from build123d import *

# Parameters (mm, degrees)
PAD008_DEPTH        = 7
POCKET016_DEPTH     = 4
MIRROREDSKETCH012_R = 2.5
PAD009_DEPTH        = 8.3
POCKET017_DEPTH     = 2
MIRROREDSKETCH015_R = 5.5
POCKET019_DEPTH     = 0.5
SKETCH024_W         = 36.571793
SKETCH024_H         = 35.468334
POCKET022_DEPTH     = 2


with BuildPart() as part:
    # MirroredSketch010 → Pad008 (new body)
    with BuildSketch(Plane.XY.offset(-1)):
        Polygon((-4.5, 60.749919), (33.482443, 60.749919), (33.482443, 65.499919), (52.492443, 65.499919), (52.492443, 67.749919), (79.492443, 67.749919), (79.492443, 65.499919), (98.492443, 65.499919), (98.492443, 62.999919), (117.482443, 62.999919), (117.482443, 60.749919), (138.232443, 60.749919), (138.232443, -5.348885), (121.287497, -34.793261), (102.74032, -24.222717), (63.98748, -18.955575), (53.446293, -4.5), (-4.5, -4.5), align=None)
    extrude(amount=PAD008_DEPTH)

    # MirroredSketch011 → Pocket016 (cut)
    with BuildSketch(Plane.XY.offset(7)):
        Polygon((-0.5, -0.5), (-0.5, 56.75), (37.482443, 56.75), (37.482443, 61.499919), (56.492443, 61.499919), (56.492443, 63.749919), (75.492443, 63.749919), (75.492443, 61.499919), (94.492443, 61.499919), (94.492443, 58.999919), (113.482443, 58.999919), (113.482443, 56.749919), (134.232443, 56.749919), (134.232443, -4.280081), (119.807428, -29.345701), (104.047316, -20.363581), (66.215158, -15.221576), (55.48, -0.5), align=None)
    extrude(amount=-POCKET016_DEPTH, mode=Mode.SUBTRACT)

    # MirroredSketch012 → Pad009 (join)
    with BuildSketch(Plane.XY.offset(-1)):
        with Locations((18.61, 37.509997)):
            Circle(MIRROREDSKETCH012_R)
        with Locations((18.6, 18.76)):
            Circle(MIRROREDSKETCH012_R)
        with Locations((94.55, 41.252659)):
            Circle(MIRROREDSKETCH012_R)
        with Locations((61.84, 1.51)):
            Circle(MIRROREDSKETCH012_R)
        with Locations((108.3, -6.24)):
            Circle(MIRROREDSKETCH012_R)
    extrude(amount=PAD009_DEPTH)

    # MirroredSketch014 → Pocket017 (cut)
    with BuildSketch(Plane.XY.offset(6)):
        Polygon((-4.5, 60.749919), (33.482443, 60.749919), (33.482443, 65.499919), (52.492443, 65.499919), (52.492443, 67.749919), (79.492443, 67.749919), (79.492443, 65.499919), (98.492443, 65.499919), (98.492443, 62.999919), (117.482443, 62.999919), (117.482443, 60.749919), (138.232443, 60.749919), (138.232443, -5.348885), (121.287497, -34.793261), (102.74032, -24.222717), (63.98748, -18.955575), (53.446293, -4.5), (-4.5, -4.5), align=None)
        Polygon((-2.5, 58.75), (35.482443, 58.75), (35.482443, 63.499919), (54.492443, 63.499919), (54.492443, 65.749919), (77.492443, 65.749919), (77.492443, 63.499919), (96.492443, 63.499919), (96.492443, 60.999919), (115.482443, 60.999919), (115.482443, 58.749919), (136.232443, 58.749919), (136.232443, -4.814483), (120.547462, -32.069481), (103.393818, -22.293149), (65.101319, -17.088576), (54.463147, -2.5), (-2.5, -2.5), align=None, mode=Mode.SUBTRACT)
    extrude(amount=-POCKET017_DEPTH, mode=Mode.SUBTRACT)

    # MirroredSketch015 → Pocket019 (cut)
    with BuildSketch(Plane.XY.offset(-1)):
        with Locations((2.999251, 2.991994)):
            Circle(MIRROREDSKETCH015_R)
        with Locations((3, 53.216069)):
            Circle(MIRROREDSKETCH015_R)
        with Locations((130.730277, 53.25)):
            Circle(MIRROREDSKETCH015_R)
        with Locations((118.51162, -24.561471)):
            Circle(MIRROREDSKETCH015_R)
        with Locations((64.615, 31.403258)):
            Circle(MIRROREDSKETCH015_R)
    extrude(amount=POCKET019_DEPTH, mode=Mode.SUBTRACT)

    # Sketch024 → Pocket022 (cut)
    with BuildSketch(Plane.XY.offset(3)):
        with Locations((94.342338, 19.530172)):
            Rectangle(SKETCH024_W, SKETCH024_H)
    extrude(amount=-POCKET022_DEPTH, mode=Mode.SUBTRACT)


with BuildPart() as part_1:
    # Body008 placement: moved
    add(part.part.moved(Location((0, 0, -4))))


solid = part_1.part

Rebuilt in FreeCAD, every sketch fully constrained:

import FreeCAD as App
import Part
import Sketcher
from FreeCAD import Vector
Q = App.Units.Quantity


def add_polygon(sketch, points):
    """Adds a closed chain of lines whose ends are joined by coincident constraints."""
    first, n = sketch.GeometryCount, len(points)
    for a, b in zip(points, points[1:] + points[:1]):
        sketch.addGeometry(Part.LineSegment(App.Vector(*a, 0), App.Vector(*b, 0)), False)
    for i in range(n):
        sketch.addConstraint(Sketcher.Constraint("Coincident", first + i, 2, first + (i + 1) % n, 1))

doc = App.newDocument("Part")
params = doc.addObject("Spreadsheet::Sheet", "Params")
for row, (alias, value) in enumerate([
    ("sketch1_width", "19 mm"),
    ("sketch1_width2", "27 mm"),
    ("sketch1_height", "2.5 mm"),
    ("sketch1_width3", "20.75 mm"),
    ("sketch1_width4", "18.99 mm"),
    ("pad1_length", "7 mm"),
    ("sketch2_width", "19 mm"),
    ("sketch2_height", "2.5 mm"),
    ("sketch2_width2", "55.98 mm"),
    ("sketch2_width3", "20.75 mm"),
    ("sketch2_width4", "18.99 mm"),
    ("pocket1_length", "4 mm"),
    ("sketch3_diameter", "5 mm"),
    ("pad2_length", "8.3 mm"),
    ("sketch4_width", "19 mm"),
    ("sketch4_width2", "27 mm"),
    ("sketch4_width3", "23 mm"),
    ("sketch4_height", "2.5 mm"),
    ("sketch4_width4", "20.75 mm"),
    ("pocket2_length", "2 mm"),
    ("sketch5_diameter", "11 mm"),
    ("pocket3_length", "0.5 mm"),
    ("pocket4_length", "2 mm"),
], start=1):
    params.set(f"A{row}", alias)
    params.set(f"B{row}", "=" + value)
    params.setAlias(f"B{row}", alias)

body = doc.addObject("PartDesign::Body", "Body")

# Sketch on XY plane
sketch1 = body.newObject("Sketcher::SketchObject", "Sketch")
sketch1.AttachmentSupport = (doc.getObject("XY_Plane"), [""])
sketch1.MapMode = "FlatFace"
sketch1.AttachmentOffset = App.Placement(Vector(0, 0, -1), App.Rotation())
add_polygon(sketch1, [(33.482443, 60.749919), (-4.5, 60.749919), (-4.5, -4.5), (53.446293, -4.5), (63.98748, -18.955575), (102.74032, -24.222717), (121.287497, -34.793261), (138.232443, -5.348885), (138.232443, 60.749919), (117.482443, 60.749919), (117.482443, 62.999919), (98.492443, 62.999919), (98.492443, 65.499919), (79.492443, 65.499919), (79.492443, 67.749919), (52.492443, 67.749919), (52.492443, 65.499919), (33.482443, 65.499919)])  # lines 0-17
sketch1.addConstraint(Sketcher.Constraint("Horizontal", 0))
sketch1.addConstraint(Sketcher.Constraint("Vertical", 1))
sketch1.addConstraint(Sketcher.Constraint("Horizontal", 2))
sketch1.addConstraint(Sketcher.Constraint("Vertical", 7))
sketch1.addConstraint(Sketcher.Constraint("Horizontal", 8))
sketch1.addConstraint(Sketcher.Constraint("Vertical", 9))
sketch1.addConstraint(Sketcher.Constraint("Horizontal", 10))
sketch1.addConstraint(Sketcher.Constraint("Vertical", 11))
sketch1.addConstraint(Sketcher.Constraint("Horizontal", 12))
sketch1.addConstraint(Sketcher.Constraint("Vertical", 13))
sketch1.addConstraint(Sketcher.Constraint("Horizontal", 14))
sketch1.addConstraint(Sketcher.Constraint("Vertical", 15))
sketch1.addConstraint(Sketcher.Constraint("Horizontal", 16))
sketch1.addConstraint(Sketcher.Constraint("Vertical", 17))
sketch1.addConstraint(Sketcher.Constraint("Horizontal", 0, 2, 7, 2))
sketch1.addConstraint(Sketcher.Constraint("Horizontal", 12, 2, 15, 2))
sketch1.addConstraint(Sketcher.Constraint("Equal", 9, 13))
sketch1.addConstraint(Sketcher.Constraint("DistanceX", 12, 2, 12, 1, Q("19 mm")))
sketch1.addConstraint(Sketcher.Constraint("DistanceX", 14, 2, 14, 1, Q("27 mm")))
sketch1.addConstraint(Sketcher.Constraint("DistanceY", 11, 1, 11, 2, Q("2.5 mm")))
sketch1.addConstraint(Sketcher.Constraint("Angle", 3, Q("-53.899999 deg")))
sketch1.addConstraint(Sketcher.Constraint("DistanceY", 8, 2, 13, 2, Q("7 mm")))
sketch1.addConstraint(Sketcher.Constraint("DistanceX", 8, 2, 8, 1, Q("20.75 mm")))
sketch1.addConstraint(Sketcher.Constraint("DistanceX", 10, 2, 10, 1, Q("18.99 mm")))
sketch1.addConstraint(Sketcher.Constraint("DistanceX", 16, 2, 16, 1, Q("19.01 mm")))
sketch1.addConstraint(Sketcher.Constraint("DistanceX", 0, 2, -1, 1, Q("4.5 mm")))
sketch1.addConstraint(Sketcher.Constraint("DistanceY", 1, 2, -1, 1, Q("4.5 mm")))
sketch1.addConstraint(Sketcher.Constraint("Angle", 4, Q("-7.740001 deg")))
sketch1.addConstraint(Sketcher.Constraint("Angle", 5, Q("-29.68 deg")))
sketch1.addConstraint(Sketcher.Constraint("Angle", 6, Q("60.080001 deg")))
sketch1.addConstraint(Sketcher.Constraint("DistanceY", 1, 2, 1, 1, Q("65.249919 mm")))
sketch1.addConstraint(Sketcher.Constraint("Distance", 5, Q("21.347931 mm")))
sketch1.addConstraint(Sketcher.Constraint("DistanceX", 0, 2, 0, 1, Q("37.982443 mm")))
sketch1.addConstraint(Sketcher.Constraint("DistanceX", 2, 1, 2, 2, Q("57.946293 mm")))
sketch1.addConstraint(Sketcher.Constraint("DistanceY", 7, 1, 7, 2, Q("66.098804 mm")))
sketch1.addConstraint(Sketcher.Constraint("DistanceX", -1, 1, 3, 2, Q("63.98748 mm")))
sketch1.setExpression("Constraints[35]", "Params.sketch1_width")
sketch1.setExpression("Constraints[36]", "Params.sketch1_width2")
sketch1.setExpression("Constraints[37]", "Params.sketch1_height")
sketch1.setExpression("Constraints[40]", "Params.sketch1_width3")
sketch1.setExpression("Constraints[41]", "Params.sketch1_width4")
pad1 = body.newObject("PartDesign::Pad", "Pad")
pad1.Profile = sketch1
pad1.setExpression("Length", "Params.pad1_length")

# Sketch on XY plane
sketch2 = body.newObject("Sketcher::SketchObject", "Sketch001")
sketch2.AttachmentSupport = (doc.getObject("XY_Plane"), [""])
sketch2.MapMode = "FlatFace"
sketch2.AttachmentOffset = App.Placement(Vector(0, 0, 7), App.Rotation())
add_polygon(sketch2, [(-0.5, 56.75), (-0.5, -0.5), (55.48, -0.5), (66.215158, -15.221576), (104.047316, -20.363581), (119.807428, -29.345701), (134.232443, -4.280081), (134.232443, 56.749919), (113.482443, 56.749919), (113.482443, 58.999919), (94.492443, 58.999919), (94.492443, 61.499919), (75.492443, 61.499919), (75.492443, 63.749919), (56.492443, 63.749919), (56.492443, 61.499919), (37.482443, 61.499919), (37.482443, 56.75)])  # lines 0-17
sketch2.addConstraint(Sketcher.Constraint("Vertical", 0))
sketch2.addConstraint(Sketcher.Constraint("Horizontal", 1))
sketch2.addConstraint(Sketcher.Constraint("Vertical", 6))
sketch2.addConstraint(Sketcher.Constraint("Horizontal", 7))
sketch2.addConstraint(Sketcher.Constraint("Vertical", 8))
sketch2.addConstraint(Sketcher.Constraint("Horizontal", 9))
sketch2.addConstraint(Sketcher.Constraint("Vertical", 10))
sketch2.addConstraint(Sketcher.Constraint("Horizontal", 11))
sketch2.addConstraint(Sketcher.Constraint("Vertical", 12))
sketch2.addConstraint(Sketcher.Constraint("Horizontal", 13))
sketch2.addConstraint(Sketcher.Constraint("Vertical", 14))
sketch2.addConstraint(Sketcher.Constraint("Horizontal", 15))
sketch2.addConstraint(Sketcher.Constraint("Vertical", 16))
sketch2.addConstraint(Sketcher.Constraint("Horizontal", 17))
sketch2.addConstraint(Sketcher.Constraint("Horizontal", 11, 2, 14, 2))
sketch2.addConstraint(Sketcher.Constraint("Equal", 11, 13))
sketch2.addConstraint(Sketcher.Constraint("Equal", 8, 12))
sketch2.addConstraint(Sketcher.Constraint("DistanceX", 11, 2, 11, 1, Q("19 mm")))
sketch2.addConstraint(Sketcher.Constraint("DistanceY", 10, 1, 10, 2, Q("2.5 mm")))
sketch2.addConstraint(Sketcher.Constraint("Angle", 2, Q("-53.9 deg")))
sketch2.addConstraint(Sketcher.Constraint("DistanceY", 7, 2, 12, 2, Q("7 mm")))
sketch2.addConstraint(Sketcher.Constraint("DistanceX", 1, 1, 1, 2, Q("55.98 mm")))
sketch2.addConstraint(Sketcher.Constraint("DistanceX", 7, 2, 7, 1, Q("20.75 mm")))
sketch2.addConstraint(Sketcher.Constraint("DistanceX", 9, 2, 9, 1, Q("18.99 mm")))
sketch2.addConstraint(Sketcher.Constraint("DistanceX", 15, 2, 15, 1, Q("19.01 mm")))
sketch2.addConstraint(Sketcher.Constraint("DistanceY", 0, 2, 0, 1, Q("57.25 mm")))
sketch2.addConstraint(Sketcher.Constraint("DistanceY", 6, 1, 6, 2, Q("61.03 mm")))
sketch2.addConstraint(Sketcher.Constraint("DistanceX", 0, 2, -1, 1, Q("0.5 mm")))
sketch2.addConstraint(Sketcher.Constraint("DistanceY", 0, 2, -1, 1, Q("0.5 mm")))
sketch2.addConstraint(Sketcher.Constraint("Angle", 3, Q("-7.739999 deg")))
sketch2.addConstraint(Sketcher.Constraint("Angle", 4, Q("-29.680001 deg")))
sketch2.addConstraint(Sketcher.Constraint("Angle", 5, Q("60.080001 deg")))
sketch2.addConstraint(Sketcher.Constraint("Distance", 2, Q("18.22 mm")))
sketch2.addConstraint(Sketcher.Constraint("Distance", 3, Q("38.18 mm")))
sketch2.addConstraint(Sketcher.Constraint("Distance", 4, Q("18.14 mm")))
sketch2.addConstraint(Sketcher.Constraint("Distance", 5, Q("28.919999 mm")))
sketch2.setExpression("Constraints[35]", "Params.sketch2_width")
sketch2.setExpression("Constraints[36]", "Params.sketch2_height")
sketch2.setExpression("Constraints[39]", "Params.sketch2_width2")
sketch2.setExpression("Constraints[40]", "Params.sketch2_width3")
sketch2.setExpression("Constraints[41]", "Params.sketch2_width4")
pocket1 = body.newObject("PartDesign::Pocket", "Pocket")
pocket1.Profile = sketch2
pocket1.setExpression("Length", "Params.pocket1_length")

# Sketch on XY plane
sketch3 = body.newObject("Sketcher::SketchObject", "Sketch002")
sketch3.AttachmentSupport = (doc.getObject("XY_Plane"), [""])
sketch3.MapMode = "FlatFace"
sketch3.AttachmentOffset = App.Placement(Vector(0, 0, -1), App.Rotation())
sketch3.addGeometry(Part.Circle(Vector(18.61, 37.509997, 0), Vector(0, 0, 1), 2.5), False)
sketch3.addGeometry(Part.Circle(Vector(18.6, 18.76, 0), Vector(0, 0, 1), 2.5), False)
sketch3.addGeometry(Part.Circle(Vector(94.55, 41.252659, 0), Vector(0, 0, 1), 2.5), False)
sketch3.addGeometry(Part.Circle(Vector(61.84, 1.51, 0), Vector(0, 0, 1), 2.5), False)
sketch3.addGeometry(Part.Circle(Vector(108.3, -6.24, 0), Vector(0, 0, 1), 2.5), False)
sketch3.addConstraint(Sketcher.Constraint("Equal", 0, 1))
sketch3.addConstraint(Sketcher.Constraint("Equal", 1, 2))
sketch3.addConstraint(Sketcher.Constraint("Equal", 2, 3))
sketch3.addConstraint(Sketcher.Constraint("Equal", 3, 4))
sketch3.addConstraint(Sketcher.Constraint("Diameter", 0, Q("5 mm")))
sketch3.addConstraint(Sketcher.Constraint("DistanceY", 4, 3, 1, 3, Q("25 mm")))
sketch3.addConstraint(Sketcher.Constraint("DistanceX", -1, 1, 1, 3, Q("18.6 mm")))
sketch3.addConstraint(Sketcher.Constraint("DistanceX", -1, 1, 4, 3, Q("108.3 mm")))
sketch3.addConstraint(Sketcher.Constraint("DistanceX", -1, 1, 0, 3, Q("18.61 mm")))
sketch3.addConstraint(Sketcher.Constraint("DistanceY", -1, 1, 1, 3, Q("18.76 mm")))
sketch3.addConstraint(Sketcher.Constraint("DistanceX", -1, 1, 2, 3, Q("94.55 mm")))
sketch3.addConstraint(Sketcher.Constraint("DistanceX", -1, 1, 3, 3, Q("61.84 mm")))
sketch3.addConstraint(Sketcher.Constraint("DistanceY", -1, 1, 3, 3, Q("1.51 mm")))
sketch3.addConstraint(Sketcher.Constraint("DistanceY", -1, 1, 2, 3, Q("41.252659 mm")))
sketch3.addConstraint(Sketcher.Constraint("DistanceY", -1, 1, 0, 3, Q("37.509997 mm")))
sketch3.setExpression("Constraints[4]", "Params.sketch3_diameter")
pad2 = body.newObject("PartDesign::Pad", "Pad001")
pad2.Profile = sketch3
pad2.setExpression("Length", "Params.pad2_length")

# Sketch on XY plane
sketch4 = body.newObject("Sketcher::SketchObject", "Sketch003")
sketch4.AttachmentSupport = (doc.getObject("XY_Plane"), [""])
sketch4.MapMode = "FlatFace"
sketch4.AttachmentOffset = App.Placement(Vector(0, 0, 6), App.Rotation())
add_polygon(sketch4, [(33.482443, 60.749919), (-4.5, 60.749919), (-4.5, -4.5), (53.446293, -4.5), (63.98748, -18.955575), (102.74032, -24.222717), (121.287497, -34.793261), (138.232443, -5.348885), (138.232443, 60.749919), (117.482443, 60.749919), (117.482443, 62.999919), (98.492443, 62.999919), (98.492443, 65.499919), (79.492443, 65.499919), (79.492443, 67.749919), (52.492443, 67.749919), (52.492443, 65.499919), (33.482443, 65.499919)])  # lines 0-17
add_polygon(sketch4, [(-2.5, 58.75), (35.482443, 58.75), (35.482443, 63.499919), (54.492443, 63.499919), (54.492443, 65.749919), (77.492443, 65.749919), (77.492443, 63.499919), (96.492443, 63.499919), (96.492443, 60.999919), (115.482443, 60.999919), (115.482443, 58.749919), (136.232443, 58.749919), (136.232443, -4.814483), (120.547462, -32.069481), (103.393818, -22.293149), (65.101319, -17.088576), (54.463147, -2.5), (-2.5, -2.5)])  # lines 18-35
sketch4.addConstraint(Sketcher.Constraint("Horizontal", 0))
sketch4.addConstraint(Sketcher.Constraint("Vertical", 1))
sketch4.addConstraint(Sketcher.Constraint("Horizontal", 2))
sketch4.addConstraint(Sketcher.Constraint("Vertical", 7))
sketch4.addConstraint(Sketcher.Constraint("Horizontal", 8))
sketch4.addConstraint(Sketcher.Constraint("Vertical", 9))
sketch4.addConstraint(Sketcher.Constraint("Horizontal", 10))
sketch4.addConstraint(Sketcher.Constraint("Vertical", 11))
sketch4.addConstraint(Sketcher.Constraint("Horizontal", 12))
sketch4.addConstraint(Sketcher.Constraint("Vertical", 13))
sketch4.addConstraint(Sketcher.Constraint("Horizontal", 14))
sketch4.addConstraint(Sketcher.Constraint("Vertical", 15))
sketch4.addConstraint(Sketcher.Constraint("Horizontal", 16))
sketch4.addConstraint(Sketcher.Constraint("Vertical", 17))
sketch4.addConstraint(Sketcher.Constraint("Horizontal", 18))
sketch4.addConstraint(Sketcher.Constraint("Vertical", 19))
sketch4.addConstraint(Sketcher.Constraint("Horizontal", 20))
sketch4.addConstraint(Sketcher.Constraint("Vertical", 21))
sketch4.addConstraint(Sketcher.Constraint("Horizontal", 22))
sketch4.addConstraint(Sketcher.Constraint("Vertical", 23))
sketch4.addConstraint(Sketcher.Constraint("Horizontal", 24))
sketch4.addConstraint(Sketcher.Constraint("Vertical", 25))
sketch4.addConstraint(Sketcher.Constraint("Horizontal", 26))
sketch4.addConstraint(Sketcher.Constraint("Vertical", 27))
sketch4.addConstraint(Sketcher.Constraint("Horizontal", 28))
sketch4.addConstraint(Sketcher.Constraint("Vertical", 29))
sketch4.addConstraint(Sketcher.Constraint("Horizontal", 34))
sketch4.addConstraint(Sketcher.Constraint("Vertical", 35))
sketch4.addConstraint(Sketcher.Constraint("Parallel", 6, 30))
sketch4.addConstraint(Sketcher.Constraint("Parallel", 5, 31))
sketch4.addConstraint(Sketcher.Constraint("Parallel", 4, 32))
sketch4.addConstraint(Sketcher.Constraint("Parallel", 3, 33))
sketch4.addConstraint(Sketcher.Constraint("Horizontal", 0, 2, 7, 2))
sketch4.addConstraint(Sketcher.Constraint("Horizontal", 12, 2, 15, 2))
sketch4.addConstraint(Sketcher.Constraint("Horizontal", 20, 2, 23, 2))
sketch4.addConstraint(Sketcher.Constraint("Equal", 0, 18))
sketch4.addConstraint(Sketcher.Constraint("Equal", 16, 20))
sketch4.addConstraint(Sketcher.Constraint("Equal", 12, 24))
sketch4.addConstraint(Sketcher.Constraint("Equal", 10, 26))
sketch4.addConstraint(Sketcher.Constraint("Equal", 8, 28))
sketch4.addConstraint(Sketcher.Constraint("Equal", 9, 13))
sketch4.addConstraint(Sketcher.Constraint("Equal", 15, 21))
sketch4.addConstraint(Sketcher.Constraint("Equal", 11, 25))
sketch4.addConstraint(Sketcher.Constraint("Equal", 23, 27))
sketch4.addConstraint(Sketcher.Constraint("DistanceX", 12, 2, 12, 1, Q("19 mm")))
sketch4.addConstraint(Sketcher.Constraint("DistanceX", 14, 2, 14, 1, Q("27 mm")))
sketch4.addConstraint(Sketcher.Constraint("DistanceX", 22, 1, 22, 2, Q("23 mm")))
sketch4.addConstraint(Sketcher.Constraint("DistanceY", 11, 1, 11, 2, Q("2.5 mm")))
sketch4.addConstraint(Sketcher.Constraint("Angle", 3, Q("-53.899999 deg")))
sketch4.addConstraint(Sketcher.Constraint("DistanceY", 8, 2, 13, 2, Q("7 mm")))
sketch4.addConstraint(Sketcher.Constraint("DistanceX", 17, 2, 18, 2, Q("2 mm")))
sketch4.addConstraint(Sketcher.Constraint("DistanceY", 19, 2, 16, 2, Q("2 mm")))
sketch4.addConstraint(Sketcher.Constraint("DistanceY", 2, 2, 33, 2, Q("2 mm")))
sketch4.addConstraint(Sketcher.Constraint("DistanceX", 8, 2, 8, 1, Q("20.75 mm")))
sketch4.addConstraint(Sketcher.Constraint("DistanceX", 10, 2, 10, 1, Q("18.99 mm")))
sketch4.addConstraint(Sketcher.Constraint("DistanceX", 16, 2, 16, 1, Q("19.01 mm")))
sketch4.addConstraint(Sketcher.Constraint("DistanceY", 35, 1, 35, 2, Q("61.25 mm")))
sketch4.addConstraint(Sketcher.Constraint("DistanceX", 0, 2, -1, 1, Q("4.5 mm")))
sketch4.addConstraint(Sketcher.Constraint("DistanceY", 1, 2, -1, 1, Q("4.5 mm")))
sketch4.addConstraint(Sketcher.Constraint("Angle", 4, Q("-7.740001 deg")))
sketch4.addConstraint(Sketcher.Constraint("Angle", 5, Q("-29.68 deg")))
sketch4.addConstraint(Sketcher.Constraint("Angle", 6, Q("60.080001 deg")))
sketch4.addConstraint(Sketcher.Constraint("DistanceY", 30, 2, 29, 2, Q("27.254998 mm")))
sketch4.addConstraint(Sketcher.Constraint("DistanceY", 3, 2, 32, 2, Q("1.866999 mm")))
sketch4.addConstraint(Sketcher.Constraint("DistanceX", 32, 2, 4, 2, Q("37.639001 mm")))
sketch4.addConstraint(Sketcher.Constraint("DistanceY", 1, 2, 1, 1, Q("65.249919 mm")))
sketch4.addConstraint(Sketcher.Constraint("DistanceY", 29, 2, 7, 2, Q("65.564402 mm")))
sketch4.addConstraint(Sketcher.Constraint("DistanceX", 32, 2, 31, 2, Q("38.292499 mm")))
sketch4.addConstraint(Sketcher.Constraint("Distance", 5, Q("21.347931 mm")))
sketch4.addConstraint(Sketcher.Constraint("DistanceX", 0, 2, 0, 1, Q("37.982443 mm")))
sketch4.addConstraint(Sketcher.Constraint("DistanceX", 2, 1, 2, 2, Q("57.946293 mm")))
sketch4.addConstraint(Sketcher.Constraint("DistanceX", 34, 2, 34, 1, Q("56.963147 mm")))
sketch4.setExpression("Constraints[80]", "Params.sketch4_width")
sketch4.setExpression("Constraints[81]", "Params.sketch4_width2")
sketch4.setExpression("Constraints[82]", "Params.sketch4_width3")
sketch4.setExpression("Constraints[83]", "Params.sketch4_height")
sketch4.setExpression("Constraints[89]", "Params.sketch4_width4")
pocket2 = body.newObject("PartDesign::Pocket", "Pocket001")
pocket2.Profile = sketch4
pocket2.setExpression("Length", "Params.pocket2_length")

# Sketch on XY plane
sketch5 = body.newObject("Sketcher::SketchObject", "Sketch004")
sketch5.AttachmentSupport = (doc.getObject("XY_Plane"), [""])
sketch5.MapMode = "FlatFace"
sketch5.AttachmentOffset = App.Placement(Vector(0, 0, -1), App.Rotation())
sketch5.addGeometry(Part.Circle(Vector(2.999251, 2.991994, 0), Vector(0, 0, 1), 5.5), False)
sketch5.addGeometry(Part.Circle(Vector(3, 53.216069, 0), Vector(0, 0, 1), 5.5), False)
sketch5.addGeometry(Part.Circle(Vector(130.730277, 53.25, 0), Vector(0, 0, 1), 5.5), False)
sketch5.addGeometry(Part.Circle(Vector(118.51162, -24.561471, 0), Vector(0, 0, 1), 5.5), False)
sketch5.addGeometry(Part.Circle(Vector(64.615, 31.403258, 0), Vector(0, 0, 1), 5.5), False)
sketch5.addConstraint(Sketcher.Constraint("Equal", 0, 1))
sketch5.addConstraint(Sketcher.Constraint("Equal", 1, 2))
sketch5.addConstraint(Sketcher.Constraint("Equal", 2, 3))
sketch5.addConstraint(Sketcher.Constraint("Equal", 3, 4))
sketch5.addConstraint(Sketcher.Constraint("Diameter", 0, Q("11 mm")))
sketch5.addConstraint(Sketcher.Constraint("DistanceX", -1, 1, 1, 3, Q("3 mm")))
sketch5.addConstraint(Sketcher.Constraint("DistanceY", -1, 1, 2, 3, Q("53.25 mm")))
sketch5.addConstraint(Sketcher.Constraint("DistanceX", -1, 1, 4, 3, Q("64.615 mm")))
sketch5.addConstraint(Sketcher.Constraint("DistanceX", -1, 1, 0, 3, Q("2.999251 mm")))
sketch5.addConstraint(Sketcher.Constraint("DistanceY", -1, 1, 1, 3, Q("53.216069 mm")))
sketch5.addConstraint(Sketcher.Constraint("DistanceX", -1, 1, 3, 3, Q("118.51162 mm")))
sketch5.addConstraint(Sketcher.Constraint("DistanceY", 3, 3, -1, 1, Q("24.561471 mm")))
sketch5.addConstraint(Sketcher.Constraint("DistanceY", -1, 1, 4, 3, Q("31.403258 mm")))
sketch5.addConstraint(Sketcher.Constraint("DistanceY", -1, 1, 0, 3, Q("2.991994 mm")))
sketch5.addConstraint(Sketcher.Constraint("DistanceX", -1, 1, 2, 3, Q("130.730277 mm")))
sketch5.setExpression("Constraints[4]", "Params.sketch5_diameter")
pocket3 = body.newObject("PartDesign::Pocket", "Pocket002")
pocket3.Profile = sketch5
pocket3.setExpression("Length", "Params.pocket3_length")
pocket3.Reversed = True

# Sketch on XY plane
sketch6 = body.newObject("Sketcher::SketchObject", "Sketch005")
sketch6.AttachmentSupport = (doc.getObject("XY_Plane"), [""])
sketch6.MapMode = "FlatFace"
sketch6.AttachmentOffset = App.Placement(Vector(0, 0, 3), App.Rotation())
add_polygon(sketch6, [(76.056442, 37.264339), (76.056442, 1.796005), (112.628235, 1.796005), (112.628235, 37.264339)])  # lines 0-3
sketch6.addConstraint(Sketcher.Constraint("Vertical", 0))
sketch6.addConstraint(Sketcher.Constraint("Horizontal", 1))
sketch6.addConstraint(Sketcher.Constraint("Vertical", 2))
sketch6.addConstraint(Sketcher.Constraint("Horizontal", 3))
sketch6.addConstraint(Sketcher.Constraint("DistanceX", 1, 1, 1, 2, Q("36.571793 mm")))
sketch6.addConstraint(Sketcher.Constraint("DistanceY", 0, 2, 0, 1, Q("35.468334 mm")))
sketch6.addConstraint(Sketcher.Constraint("DistanceX", -1, 1, 0, 2, Q("76.056442 mm")))
sketch6.addConstraint(Sketcher.Constraint("DistanceY", -1, 1, 2, 2, Q("37.264339 mm")))
pocket4 = body.newObject("PartDesign::Pocket", "Pocket003")
pocket4.Profile = sketch6
pocket4.setExpression("Length", "Params.pocket4_length")
body2 = doc.addObject("PartDesign::Body", "Body001")
doc.recompute()

body.Placement = App.Placement(Vector(0, 0, -4), App.Rotation(Vector(0, 0, 1), 0))
boolean = body2.newObject("PartDesign::Boolean", "Boolean")
boolean.Type = "Fuse"
boolean.addObjects([body])

doc.recompute()
